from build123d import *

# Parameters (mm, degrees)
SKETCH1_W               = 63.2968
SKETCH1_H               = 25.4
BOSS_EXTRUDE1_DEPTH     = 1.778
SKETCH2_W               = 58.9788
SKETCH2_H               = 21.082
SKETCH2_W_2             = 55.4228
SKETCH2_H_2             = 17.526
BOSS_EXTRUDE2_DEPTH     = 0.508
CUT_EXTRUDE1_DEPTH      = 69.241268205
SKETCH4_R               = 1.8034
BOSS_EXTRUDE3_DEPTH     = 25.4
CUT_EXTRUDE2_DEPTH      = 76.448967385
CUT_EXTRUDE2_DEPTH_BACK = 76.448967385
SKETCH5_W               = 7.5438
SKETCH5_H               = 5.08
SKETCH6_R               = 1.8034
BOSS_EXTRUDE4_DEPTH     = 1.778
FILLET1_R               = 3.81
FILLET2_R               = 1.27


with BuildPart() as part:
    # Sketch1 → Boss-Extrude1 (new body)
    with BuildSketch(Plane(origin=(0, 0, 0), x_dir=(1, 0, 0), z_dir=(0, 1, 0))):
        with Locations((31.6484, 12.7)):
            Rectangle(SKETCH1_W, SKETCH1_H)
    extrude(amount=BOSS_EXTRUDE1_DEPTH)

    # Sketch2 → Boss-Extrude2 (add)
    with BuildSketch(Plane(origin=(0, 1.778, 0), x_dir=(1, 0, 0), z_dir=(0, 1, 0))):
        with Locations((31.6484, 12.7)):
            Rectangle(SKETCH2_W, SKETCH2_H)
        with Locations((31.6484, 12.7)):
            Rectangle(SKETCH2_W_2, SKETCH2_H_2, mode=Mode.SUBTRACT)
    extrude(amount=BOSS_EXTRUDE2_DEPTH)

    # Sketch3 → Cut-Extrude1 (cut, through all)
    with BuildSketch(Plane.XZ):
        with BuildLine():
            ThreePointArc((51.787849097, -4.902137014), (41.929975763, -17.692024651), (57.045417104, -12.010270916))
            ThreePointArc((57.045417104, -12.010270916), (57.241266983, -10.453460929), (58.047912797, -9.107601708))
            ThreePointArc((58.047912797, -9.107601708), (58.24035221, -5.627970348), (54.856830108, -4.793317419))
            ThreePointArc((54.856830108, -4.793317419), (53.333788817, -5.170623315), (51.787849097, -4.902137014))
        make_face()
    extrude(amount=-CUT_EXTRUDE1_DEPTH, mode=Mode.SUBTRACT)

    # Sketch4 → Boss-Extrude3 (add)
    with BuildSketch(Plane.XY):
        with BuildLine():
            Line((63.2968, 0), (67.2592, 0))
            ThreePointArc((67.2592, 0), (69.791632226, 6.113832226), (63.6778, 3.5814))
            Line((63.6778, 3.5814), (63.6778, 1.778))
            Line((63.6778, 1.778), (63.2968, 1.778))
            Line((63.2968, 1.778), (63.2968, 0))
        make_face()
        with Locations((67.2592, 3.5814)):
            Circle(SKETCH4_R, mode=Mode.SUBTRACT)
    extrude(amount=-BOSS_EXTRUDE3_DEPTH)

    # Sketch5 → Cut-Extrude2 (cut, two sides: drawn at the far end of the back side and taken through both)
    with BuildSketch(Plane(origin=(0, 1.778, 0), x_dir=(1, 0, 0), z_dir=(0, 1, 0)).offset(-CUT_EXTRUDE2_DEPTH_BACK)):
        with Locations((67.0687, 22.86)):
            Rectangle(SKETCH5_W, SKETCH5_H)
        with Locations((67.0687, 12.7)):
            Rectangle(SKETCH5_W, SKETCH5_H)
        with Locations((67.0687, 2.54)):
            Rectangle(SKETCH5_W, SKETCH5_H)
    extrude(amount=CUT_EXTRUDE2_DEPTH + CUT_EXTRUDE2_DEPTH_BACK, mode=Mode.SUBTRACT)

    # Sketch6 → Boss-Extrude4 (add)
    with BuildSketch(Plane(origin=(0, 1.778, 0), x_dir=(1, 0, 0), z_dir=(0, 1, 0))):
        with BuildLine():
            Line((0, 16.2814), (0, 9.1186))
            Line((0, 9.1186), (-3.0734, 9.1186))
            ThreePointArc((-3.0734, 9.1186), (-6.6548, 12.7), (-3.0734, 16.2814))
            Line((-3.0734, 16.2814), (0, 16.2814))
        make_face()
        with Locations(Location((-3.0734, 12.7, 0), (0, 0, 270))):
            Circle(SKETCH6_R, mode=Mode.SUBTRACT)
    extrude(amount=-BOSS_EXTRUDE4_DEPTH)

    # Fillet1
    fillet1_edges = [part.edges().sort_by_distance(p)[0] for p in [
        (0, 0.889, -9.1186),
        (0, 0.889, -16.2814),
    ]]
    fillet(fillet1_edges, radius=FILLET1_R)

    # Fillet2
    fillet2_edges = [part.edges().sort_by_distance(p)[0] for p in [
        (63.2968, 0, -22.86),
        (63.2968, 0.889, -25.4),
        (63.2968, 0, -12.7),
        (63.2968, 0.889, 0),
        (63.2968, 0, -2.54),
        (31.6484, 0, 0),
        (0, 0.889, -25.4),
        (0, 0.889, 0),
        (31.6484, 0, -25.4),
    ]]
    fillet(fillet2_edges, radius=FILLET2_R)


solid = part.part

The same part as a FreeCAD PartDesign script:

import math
import FreeCAD as App
import Part
import Sketcher

V = App.Vector
Q = App.Units.Quantity


def edges_at(feature, points):
    """Names of the edges that pass closest to the given points."""
    edges = feature.Shape.Edges
    near = lambda p: min(range(len(edges)), key=lambda i: edges[i].distToShape(Part.Vertex(*p))[0])
    return sorted({f"Edge{near(p) + 1}" for p in points})

doc = App.newDocument("Part")
body = doc.addObject("PartDesign::Body", "Body")

# Sketch on XZ plane
sketch1 = body.newObject("Sketcher::SketchObject", "Sketch")
sketch1.AttachmentSupport = (doc.getObject("XZ_Plane"), [""])
sketch1.MapMode = "FlatFace"
sketch1.addGeometry([
    Part.LineSegment(V(0, -25.4, 0), V(0, 0, 0)),
    Part.LineSegment(V(0, 0, 0), V(63.2968, 0, 0)),
    Part.LineSegment(V(63.2968, 0, 0), V(63.2968, -25.4, 0)),
    Part.LineSegment(V(63.2968, -25.4, 0), V(0, -25.4, 0)),
], False)
sketch1.addConstraint([
    Sketcher.Constraint("Coincident", 0, 2, 1, 1),
    Sketcher.Constraint("Coincident", 1, 2, 2, 1),
    Sketcher.Constraint("Coincident", 2, 2, 3, 1),
    Sketcher.Constraint("Coincident", 3, 2, 0, 1),
    Sketcher.Constraint("Vertical", 0),
    Sketcher.Constraint("Horizontal", 1),
    Sketcher.Constraint("Vertical", 2),
    Sketcher.Constraint("Horizontal", 3),
    Sketcher.Constraint("Coincident", 0, 2, -1, 1),
    Sketcher.Constraint("DistanceY", 0, 1, 0, 2, Q("1 in")),
    Sketcher.Constraint("DistanceX", 1, 1, 1, 2, Q("2.492 in")),
])
pad1 = body.newObject("PartDesign::Pad", "Pad")
pad1.Profile = sketch1
pad1.Length = Q("0.07 in")
pad1.Reversed = True

# Sketch on XZ plane
sketch2 = body.newObject("Sketcher::SketchObject", "Sketch001")
sketch2.AttachmentSupport = (doc.getObject("XZ_Plane"), [""])
sketch2.MapMode = "FlatFace"
sketch2.AttachmentOffset = App.Placement(V(0, 0, -0.07 * 25.4), App.Rotation())
sketch2.addGeometry([
    Part.LineSegment(V(2.159, -23.241, 0), V(2.159, -2.159, 0)),  # 0
    Part.LineSegment(V(2.159, -2.159, 0), V(61.1378, -2.159, 0)),  # 1
    Part.LineSegment(V(61.1378, -2.159, 0), V(61.1378, -23.241, 0)),  # 2
    Part.LineSegment(V(61.1378, -23.241, 0), V(2.159, -23.241, 0)),  # 3
    Part.LineSegment(V(59.3598, -3.937, 0), V(3.937, -3.937, 0)),  # 4
    Part.LineSegment(V(3.937, -3.937, 0), V(3.937, -21.463, 0)),  # 5
    Part.LineSegment(V(3.937, -21.463, 0), V(59.3598, -21.463, 0)),  # 6
    Part.LineSegment(V(59.3598, -21.463, 0), V(59.3598, -3.937, 0)),  # 7
], False)
sketch2.addConstraint([
    Sketcher.Constraint("Coincident", 0, 2, 1, 1),
    Sketcher.Constraint("Coincident", 1, 2, 2, 1),
    Sketcher.Constraint("Coincident", 2, 2, 3, 1),
    Sketcher.Constraint("Coincident", 3, 2, 0, 1),
    Sketcher.Constraint("Coincident", 4, 2, 5, 1),
    Sketcher.Constraint("Coincident", 5, 2, 6, 1),
    Sketcher.Constraint("Coincident", 6, 2, 7, 1),
    Sketcher.Constraint("Coincident", 7, 2, 4, 1),
    Sketcher.Constraint("Vertical", 0),
    Sketcher.Constraint("Horizontal", 1),
    Sketcher.Constraint("Vertical", 2),
    Sketcher.Constraint("Horizontal", 3),
    Sketcher.Constraint("Horizontal", 4),
    Sketcher.Constraint("Vertical", 5),
    Sketcher.Constraint("Horizontal", 6),
    Sketcher.Constraint("Vertical", 7),
    Sketcher.Constraint("DistanceY", 0, 1, 0, 2, Q("0.83 in")),
    Sketcher.Constraint("DistanceY", 5, 2, 5, 1, Q("0.69 in")),
    Sketcher.Constraint("DistanceX", 1, 1, 1, 2, Q("2.322 in")),
    Sketcher.Constraint("DistanceX", 4, 2, 4, 1, Q("2.182 in")),
    Sketcher.Constraint("DistanceX", 0, 2, 4, 2, Q("0.07 in")),
    Sketcher.Constraint("DistanceY", 4, 2, 0, 2, Q("0.07 in")),
    Sketcher.Constraint("DistanceX", -1, 1, 0, 2, Q("0.085 in")),
    Sketcher.Constraint("DistanceY", 0, 2, -1, 1, Q("0.085 in")),
])
pad2 = body.newObject("PartDesign::Pad", "Pad001")
pad2.Profile = sketch2
pad2.Length = Q("0.02 in")
pad2.Reversed = True

# Sketch on XZ plane
sketch3 = body.newObject("Sketcher::SketchObject", "Sketch002")
sketch3.AttachmentSupport = (doc.getObject("XZ_Plane"), [""])
sketch3.MapMode = "FlatFace"
sketch3.addGeometry([
    Part.ArcOfCircle(Part.Circle(V(48.6791, -12.7, 0), V(0, 0, 1), 8.3947), math.radians(68.264471), math.radians(364.712874)),
    Part.ArcOfCircle(Part.Circle(V(60.842535, -11.697232, 0), V(0, 0, 1), 3.81), math.radians(137.180343), math.radians(184.712874)),
    Part.ArcOfCircle(Part.Circle(V(56.0451, -7.2517, 0), V(0, 0, 1), 2.7305), math.radians(-42.819657), math.radians(115.797002)),
    Part.ArcOfCircle(Part.Circle(V(53.198779, -1.363016, 0), V(0, 0, 1), 3.81), math.radians(-111.735529), math.radians(-64.202998)),
], False)
sketch3.addConstraint([
    Sketcher.Constraint("Tangent", 0, 2, 1, 2),
    Sketcher.Constraint("Tangent", 1, 1, 2, 1),
    Sketcher.Constraint("Tangent", 2, 2, 3, 2),
    Sketcher.Constraint("Tangent", 3, 1, 0, 1),
    Sketcher.Constraint("Equal", 1, 3),
    Sketcher.Constraint("Radius", 1, Q("0.15 in")),
    Sketcher.Constraint("DistanceY", 0, 3, -1, 1, Q("0.5 in")),
    Sketcher.Constraint("Radius", 0, Q("0.3305 in")),
    Sketcher.Constraint("Radius", 2, Q("0.1075 in")),
    Sketcher.Constraint("DistanceX", 0, 3, 2, 3, Q("0.29 in")),
    Sketcher.Constraint("DistanceX", -1, 1, 0, 3, Q("1.9165 in")),
    Sketcher.Constraint("DistanceY", 2, 3, -1, 1, Q("0.2855 in")),
])
pocket1 = body.newObject("PartDesign::Pocket", "Pocket")
pocket1.Profile = sketch3
pocket1.Type = "ThroughAll"

# Sketch on XY plane
sketch4 = body.newObject("Sketcher::SketchObject", "Sketch003")
sketch4.AttachmentSupport = (doc.getObject("XY_Plane"), [""])
sketch4.MapMode = "FlatFace"
sketch4.addGeometry([
    Part.LineSegment(V(63.2968, 0, 0), V(67.2592, 0, 0)),  # 0
    Part.ArcOfCircle(Part.Circle(V(67.2592, 3.5814, 0), V(0, 0, 1), 3.5814), math.radians(-90), math.radians(180)),  # 1
    Part.LineSegment(V(63.6778, 3.5814, 0), V(63.6778, 1.778, 0)),  # 2
    Part.LineSegment(V(63.6778, 1.778, 0), V(63.2968, 1.778, 0)),  # 3
    Part.LineSegment(V(63.2968, 1.778, 0), V(63.2968, 0, 0)),  # 4
    Part.Circle(V(67.2592, 3.5814, 0), V(0, 0, 1), 1.8034),  # 5
], False)
sketch4.addConstraint([
    Sketcher.Constraint("Tangent", 0, 2, 1, 1),
    Sketcher.Constraint("Tangent", 1, 2, 2, 1),
    Sketcher.Constraint("Coincident", 2, 2, 3, 1),
    Sketcher.Constraint("Coincident", 3, 2, 4, 1),
    Sketcher.Constraint("Coincident", 4, 2, 0, 1),
    Sketcher.Constraint("Horizontal", 0),
    Sketcher.Constraint("Vertical", 2),
    Sketcher.Constraint("Horizontal", 3),
    Sketcher.Constraint("Vertical", 4),
    Sketcher.Constraint("Coincident", 5, 3, 1, 3),
    Sketcher.Constraint("PointOnObject", 0, 2, -1),
    Sketcher.Constraint("Diameter", 5, Q("0.142 in")),
    Sketcher.Constraint("Radius", 1, Q("0.141 in")),
    Sketcher.Constraint("DistanceY", 4, 2, 4, 1, Q("0.07 in")),
    Sketcher.Constraint("DistanceX", 0, 1, 0, 2, Q("0.156 in")),
    Sketcher.Constraint("DistanceX", -1, 1, 1, 3, Q("2.648 in")),
])
pad3 = body.newObject("PartDesign::Pad", "Pad002")
pad3.Profile = sketch4
pad3.Length = Q("1 in")
pad3.Reversed = True

# Sketch on XZ plane
sketch5 = body.newObject("Sketcher::SketchObject", "Sketch004")
sketch5.AttachmentSupport = (doc.getObject("XZ_Plane"), [""])
sketch5.MapMode = "FlatFace"
sketch5.AttachmentOffset = App.Placement(V(0, 0, -0.07 * 25.4), App.Rotation())
sketch5.addGeometry([
    Part.LineSegment(V(63.2968, -25.4, 0), V(63.2968, -20.32, 0)),  # 0
    Part.LineSegment(V(63.2968, -20.32, 0), V(70.8406, -20.32, 0)),  # 1
    Part.LineSegment(V(70.8406, -20.32, 0), V(70.8406, -25.4, 0)),  # 2
    Part.LineSegment(V(70.8406, -25.4, 0), V(63.2968, -25.4, 0)),  # 3
    Part.LineSegment(V(63.2968, -15.24, 0), V(63.2968, -10.16, 0)),  # 4
    Part.LineSegment(V(63.2968, -10.16, 0), V(70.8406, -10.16, 0)),  # 5
    Part.LineSegment(V(70.8406, -10.16, 0), V(70.8406, -15.24, 0)),  # 6
    Part.LineSegment(V(70.8406, -15.24, 0), V(63.2968, -15.24, 0)),  # 7
    Part.LineSegment(V(63.2968, -5.08, 0), V(63.2968, 0, 0)),  # 8
    Part.LineSegment(V(63.2968, 0, 0), V(70.8406, 0, 0)),  # 9
    Part.LineSegment(V(70.8406, 0, 0), V(70.8406, -5.08, 0)),  # 10
    Part.LineSegment(V(70.8406, -5.08, 0), V(63.2968, -5.08, 0)),  # 11
], False)
sketch5.addConstraint([
    Sketcher.Constraint("Coincident", 0, 2, 1, 1),
    Sketcher.Constraint("Coincident", 1, 2, 2, 1),
    Sketcher.Constraint("Coincident", 2, 2, 3, 1),
    Sketcher.Constraint("Coincident", 3, 2, 0, 1),
    Sketcher.Constraint("Coincident", 4, 2, 5, 1),
    Sketcher.Constraint("Coincident", 5, 2, 6, 1),
    Sketcher.Constraint("Coincident", 6, 2, 7, 1),
    Sketcher.Constraint("Coincident", 7, 2, 4, 1),
    Sketcher.Constraint("Coincident", 8, 2, 9, 1),
    Sketcher.Constraint("Coincident", 9, 2, 10, 1),
    Sketcher.Constraint("Coincident", 10, 2, 11, 1),
    Sketcher.Constraint("Coincident", 11, 2, 8, 1),
    Sketcher.Constraint("Vertical", 0),
    Sketcher.Constraint("Horizontal", 1),
    Sketcher.Constraint("Vertical", 2),
    Sketcher.Constraint("Horizontal", 3),
    Sketcher.Constraint("Vertical", 4),
    Sketcher.Constraint("Horizontal", 5),
    Sketcher.Constraint("Vertical", 6),
    Sketcher.Constraint("Horizontal", 7),
    Sketcher.Constraint("Vertical", 8),
    Sketcher.Constraint("Horizontal", 9),
    Sketcher.Constraint("Vertical", 10),
    Sketcher.Constraint("Horizontal", 11),
    Sketcher.Constraint("PointOnObject", 8, 2, -1),
    Sketcher.Constraint("Vertical", 3, 2, 4, 2),
    Sketcher.Constraint("Vertical", 2, 2, 5, 2),
    Sketcher.Constraint("Vertical", 7, 2, 8, 2),
    Sketcher.Constraint("Vertical", 6, 2, 9, 2),
    Sketcher.Constraint("Equal", 2, 4),
    Sketcher.Constraint("Equal", 6, 8),
    Sketcher.Constraint("DistanceY", 0, 1, 0, 2, Q("0.2 in")),
    Sketcher.Constraint("DistanceY", 2, 2, -1, 1, Q("1 in")),
    Sketcher.Constraint("DistanceY", 4, 2, -1, 1, Q("0.4 in")),
    Sketcher.Constraint("DistanceX", 1, 1, 1, 2, Q("0.297 in")),
    Sketcher.Constraint("DistanceX", -1, 1, 0, 2, Q("2.492 in")),
])
pocket2 = body.newObject("PartDesign::Pocket", "Pocket001")
pocket2.Profile = sketch5
pocket2.Type = "ThroughAll"
pocket2.Midplane = True

# Sketch on XZ plane
sketch6 = body.newObject("Sketcher::SketchObject", "Sketch005")
sketch6.AttachmentSupport = (doc.getObject("XZ_Plane"), [""])
sketch6.MapMode = "FlatFace"
sketch6.AttachmentOffset = App.Placement(V(0, 0, -0.07 * 25.4), App.Rotation())
sketch6.addGeometry([
    Part.LineSegment(V(0, -9.1186, 0), V(0, -16.2814, 0)),  # 0
    Part.LineSegment(V(0, -16.2814, 0), V(-3.0734, -16.2814, 0)),  # 1
    Part.ArcOfCircle(Part.Circle(V(-3.0734, -12.7, 0), V(0, 0, 1), 3.5814), math.radians(90), math.radians(270)),  # 2
    Part.LineSegment(V(-3.0734, -9.1186, 0), V(0, -9.1186, 0)),  # 3
    Part.Circle(V(-3.0734, -12.7, 0), V(0, 0, 1), 1.8034),  # 4
], False)
sketch6.addConstraint([
    Sketcher.Constraint("Coincident", 0, 2, 1, 1),
    Sketcher.Constraint("Tangent", 1, 2, 2, 2),
    Sketcher.Constraint("Tangent", 2, 1, 3, 1),
    Sketcher.Constraint("Coincident", 3, 2, 0, 1),
    Sketcher.Constraint("Vertical", 0),
    Sketcher.Constraint("Horizontal", 1),
    Sketcher.Constraint("Horizontal", 3),
    Sketcher.Constraint("Coincident", 4, 3, 2, 3),
    Sketcher.Constraint("PointOnObject", 0, 2, -2),
    Sketcher.Constraint("Diameter", 4, Q("0.142 in")),
    Sketcher.Constraint("Radius", 2, Q("0.141 in")),
    Sketcher.Constraint("DistanceY", 2, 3, -1, 1, Q("0.5 in")),
    Sketcher.Constraint("DistanceX", 1, 2, 1, 1, Q("0.121 in")),
])
pad4 = body.newObject("PartDesign::Pad", "Pad003")
pad4.Profile = sketch6
pad4.Length = Q("0.07 in")
doc.recompute()

fillet = body.newObject("PartDesign::Fillet", "Fillet")
fillet.Base = (pad4, edges_at(pad4, [(0, 0.889, -9.119), (0, 0.889, -16.281)]))
fillet.Radius = Q("0.15 in")
doc.recompute()

fillet2 = body.newObject("PartDesign::Fillet", "Fillet001")
fillet2.Base = (fillet, edges_at(fillet, [
    (63.297, 0, -22.86),
    (63.297, 0.889, -25.4),
    (63.297, 0, -12.7),
    (63.297, 0.889, 0),
    (63.297, 0, -2.54),
    (31.648, 0, 0),
    (0, 0.889, -25.4),
    (0, 0.889, 0),
    (31.648, 0, -25.4),
]))
fillet2.Radius = Q("0.05 in")

doc.recompute()
